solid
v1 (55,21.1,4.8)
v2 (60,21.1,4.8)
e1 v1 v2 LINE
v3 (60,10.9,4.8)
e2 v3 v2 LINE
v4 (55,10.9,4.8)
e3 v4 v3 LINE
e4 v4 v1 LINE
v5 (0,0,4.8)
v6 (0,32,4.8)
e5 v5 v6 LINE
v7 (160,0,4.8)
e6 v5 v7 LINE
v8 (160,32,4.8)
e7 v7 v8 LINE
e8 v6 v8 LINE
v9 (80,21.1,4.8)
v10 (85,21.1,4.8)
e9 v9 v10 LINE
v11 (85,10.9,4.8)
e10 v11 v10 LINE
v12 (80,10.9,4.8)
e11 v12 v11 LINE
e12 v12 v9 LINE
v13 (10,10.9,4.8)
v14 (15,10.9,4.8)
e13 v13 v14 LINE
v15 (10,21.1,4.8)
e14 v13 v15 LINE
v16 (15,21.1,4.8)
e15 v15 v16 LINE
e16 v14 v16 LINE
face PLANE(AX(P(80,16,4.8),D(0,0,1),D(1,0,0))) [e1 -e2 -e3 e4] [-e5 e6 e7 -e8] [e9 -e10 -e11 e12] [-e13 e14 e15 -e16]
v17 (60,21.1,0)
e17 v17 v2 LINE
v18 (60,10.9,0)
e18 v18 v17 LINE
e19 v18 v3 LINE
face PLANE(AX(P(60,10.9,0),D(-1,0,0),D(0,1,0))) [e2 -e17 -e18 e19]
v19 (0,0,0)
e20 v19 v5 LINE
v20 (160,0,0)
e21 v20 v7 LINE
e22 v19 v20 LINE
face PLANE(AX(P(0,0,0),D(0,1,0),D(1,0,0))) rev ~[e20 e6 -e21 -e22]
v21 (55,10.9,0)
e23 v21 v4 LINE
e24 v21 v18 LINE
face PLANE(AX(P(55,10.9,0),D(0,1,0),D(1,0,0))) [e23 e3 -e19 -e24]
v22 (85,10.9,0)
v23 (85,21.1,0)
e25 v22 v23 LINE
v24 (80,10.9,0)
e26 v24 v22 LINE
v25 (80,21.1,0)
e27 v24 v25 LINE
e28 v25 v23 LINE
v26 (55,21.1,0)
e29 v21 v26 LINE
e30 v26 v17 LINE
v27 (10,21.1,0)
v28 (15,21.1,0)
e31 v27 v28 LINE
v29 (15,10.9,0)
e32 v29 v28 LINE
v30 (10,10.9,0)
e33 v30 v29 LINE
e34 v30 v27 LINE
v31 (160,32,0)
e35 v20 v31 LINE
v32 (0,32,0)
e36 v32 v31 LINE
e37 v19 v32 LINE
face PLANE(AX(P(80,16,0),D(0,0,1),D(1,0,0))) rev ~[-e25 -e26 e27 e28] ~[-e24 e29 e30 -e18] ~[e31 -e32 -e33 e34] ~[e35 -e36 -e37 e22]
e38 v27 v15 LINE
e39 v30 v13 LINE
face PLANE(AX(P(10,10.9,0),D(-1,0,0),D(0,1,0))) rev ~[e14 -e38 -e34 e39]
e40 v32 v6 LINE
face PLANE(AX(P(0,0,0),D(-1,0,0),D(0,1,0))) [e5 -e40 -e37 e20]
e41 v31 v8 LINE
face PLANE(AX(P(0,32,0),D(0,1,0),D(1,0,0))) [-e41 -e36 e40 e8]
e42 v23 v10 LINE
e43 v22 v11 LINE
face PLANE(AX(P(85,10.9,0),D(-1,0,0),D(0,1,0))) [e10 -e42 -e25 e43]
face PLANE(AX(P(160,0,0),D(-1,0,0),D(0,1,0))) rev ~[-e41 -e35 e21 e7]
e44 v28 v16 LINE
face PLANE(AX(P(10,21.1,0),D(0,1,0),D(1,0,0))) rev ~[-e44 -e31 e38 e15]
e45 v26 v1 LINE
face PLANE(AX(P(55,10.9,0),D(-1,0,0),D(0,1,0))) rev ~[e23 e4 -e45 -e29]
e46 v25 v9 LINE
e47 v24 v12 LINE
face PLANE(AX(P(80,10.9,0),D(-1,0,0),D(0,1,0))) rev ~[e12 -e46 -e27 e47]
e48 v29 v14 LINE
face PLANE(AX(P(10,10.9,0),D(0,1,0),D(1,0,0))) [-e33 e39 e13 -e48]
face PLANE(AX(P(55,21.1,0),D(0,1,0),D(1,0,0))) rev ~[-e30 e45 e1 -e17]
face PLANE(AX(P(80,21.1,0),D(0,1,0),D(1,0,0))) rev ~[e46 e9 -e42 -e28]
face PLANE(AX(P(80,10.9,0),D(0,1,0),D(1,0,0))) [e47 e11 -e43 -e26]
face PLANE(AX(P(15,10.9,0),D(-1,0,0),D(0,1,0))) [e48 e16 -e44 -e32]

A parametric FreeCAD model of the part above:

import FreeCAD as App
import Part
import Sketcher
Q = App.Units.Quantity


def add_polygon(sketch, points):
    """Adds a closed chain of lines whose ends are joined by coincident constraints."""
    first, n = sketch.GeometryCount, len(points)
    for a, b in zip(points, points[1:] + points[:1]):
        sketch.addGeometry(Part.LineSegment(App.Vector(*a, 0), App.Vector(*b, 0)), False)
    for i in range(n):
        sketch.addConstraint(Sketcher.Constraint("Coincident", first + i, 2, first + (i + 1) % n, 1))

doc = App.newDocument("Part")
body = doc.addObject("PartDesign::Body", "Body")

# Sketch on XY plane
sketch1 = doc.addObject("Sketcher::SketchObject", "Sketch")
body.addObject(sketch1)
sketch1.AttachmentSupport = (doc.XY_Plane, [""])
sketch1.MapMode = "FlatFace"
add_polygon(sketch1, [(0, 32), (0, 0), (160, 0), (160, 32)])  # lines 0-3
add_polygon(sketch1, [(15, 11), (10, 11), (10, 21), (15, 21)])  # lines 4-7
add_polygon(sketch1, [(60, 11), (55, 11), (55, 21), (60, 21)])  # lines 8-11
add_polygon(sketch1, [(85, 11), (80, 11), (80, 21), (85, 21)])  # lines 12-15
sketch1.addConstraint([
    Sketcher.Constraint("Vertical", 0),
    Sketcher.Constraint("Horizontal", 1),
    Sketcher.Constraint("Vertical", 2),
    Sketcher.Constraint("Horizontal", 3),
    Sketcher.Constraint("Horizontal", 4),
    Sketcher.Constraint("Vertical", 5),
    Sketcher.Constraint("Horizontal", 6),
    Sketcher.Constraint("Vertical", 7),
    Sketcher.Constraint("Horizontal", 8),
    Sketcher.Constraint("Vertical", 9),
    Sketcher.Constraint("Horizontal", 10),
    Sketcher.Constraint("Vertical", 11),
    Sketcher.Constraint("Horizontal", 12),
    Sketcher.Constraint("Vertical", 13),
    Sketcher.Constraint("Horizontal", 14),
    Sketcher.Constraint("Vertical", 15),
    Sketcher.Constraint("Coincident", 0, 2, -1, 1),
    Sketcher.Constraint("Horizontal", 7, 2, 8, 2),
    Sketcher.Constraint("Horizontal", 6, 2, 9, 2),
    Sketcher.Constraint("Horizontal", 11, 2, 12, 2),
    Sketcher.Constraint("Horizontal", 10, 2, 13, 2),
    Sketcher.Constraint("Equal", 6, 8),
    Sketcher.Constraint("Equal", 10, 12),
    Sketcher.Constraint("DistanceX", 1, 1, 1, 2, Q("160 mm")),
    Sketcher.Constraint("DistanceX", 4, 2, 4, 1, Q("5 mm")),
    Sketcher.Constraint("DistanceY", 0, 2, 0, 1, Q("32 mm")),
    Sketcher.Constraint("DistanceY", 5, 1, 5, 2, Q("10.2 mm")),
    Sketcher.Constraint("DistanceX", -1, 1, 4, 2, Q("10 mm")),
    Sketcher.Constraint("DistanceX", -1, 1, 8, 2, Q("55 mm")),
    Sketcher.Constraint("DistanceX", -1, 1, 12, 2, Q("80 mm")),
    Sketcher.Constraint("DistanceY", -1, 1, 4, 2, Q("10.9 mm")),
])
pad1 = doc.addObject("PartDesign::Pad", "Pad")
body.addObject(pad1)
pad1.Profile = sketch1
pad1.Length = 4.8

doc.recompute()
